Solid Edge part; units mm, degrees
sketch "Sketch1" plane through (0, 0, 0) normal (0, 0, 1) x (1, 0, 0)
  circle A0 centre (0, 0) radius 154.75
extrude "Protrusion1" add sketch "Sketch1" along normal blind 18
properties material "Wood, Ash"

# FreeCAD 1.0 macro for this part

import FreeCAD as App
import Part
import Sketcher
from FreeCAD import Vector
Q = App.Units.Quantity

doc = App.newDocument("Part")
body = doc.addObject("PartDesign::Body", "Body")

# Sketch on XY plane
sketch1 = doc.addObject("Sketcher::SketchObject", "Sketch")
body.addObject(sketch1)
sketch1.AttachmentSupport = (doc.XY_Plane, [""])
sketch1.MapMode = "FlatFace"
sketch1.addGeometry(Part.Circle(Vector(0, 0, 0), Vector(0, 0, 1), 155), False)
sketch1.addConstraint(Sketcher.Constraint("Coincident", 0, 3, -1, 1))
sketch1.addConstraint(Sketcher.Constraint("Diameter", 0, Q("309.5 mm")))
pad1 = doc.addObject("PartDesign::Pad", "Pad")
body.addObject(pad1)
pad1.Profile = sketch1
pad1.Length = 18

doc.recompute()
